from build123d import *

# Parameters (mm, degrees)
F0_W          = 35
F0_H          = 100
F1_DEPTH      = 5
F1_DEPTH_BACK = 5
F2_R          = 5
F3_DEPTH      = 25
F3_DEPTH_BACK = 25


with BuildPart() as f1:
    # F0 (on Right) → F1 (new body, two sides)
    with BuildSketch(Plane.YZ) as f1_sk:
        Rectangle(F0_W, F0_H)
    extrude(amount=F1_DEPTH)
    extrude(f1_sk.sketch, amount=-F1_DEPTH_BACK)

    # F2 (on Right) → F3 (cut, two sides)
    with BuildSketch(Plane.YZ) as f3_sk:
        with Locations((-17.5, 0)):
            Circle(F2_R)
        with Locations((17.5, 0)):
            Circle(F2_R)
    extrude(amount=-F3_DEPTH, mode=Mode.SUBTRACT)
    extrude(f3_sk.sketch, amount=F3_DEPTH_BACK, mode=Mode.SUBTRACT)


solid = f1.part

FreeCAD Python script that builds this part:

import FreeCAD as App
import Part
import Sketcher
Q = App.Units.Quantity

doc = App.newDocument("Part")
body = doc.addObject("PartDesign::Body", "Body")

# Sketch on YZ plane
sketch1 = body.newObject("Sketcher::SketchObject", "Sketch")
sketch1.AttachmentSupport = (doc.getObject("YZ_Plane"), [""])
sketch1.MapMode = "FlatFace"
sketch1.addGeometry([
    Part.LineSegment(App.Vector(-17.5, 50, 0), App.Vector(-17.5, -50, 0)),
    Part.LineSegment(App.Vector(-17.5, -50, 0), App.Vector(17.5, -50, 0)),
    Part.LineSegment(App.Vector(17.5, -50, 0), App.Vector(17.5, 50, 0)),
    Part.LineSegment(App.Vector(17.5, 50, 0), App.Vector(-17.5, 50, 0)),
], False)
sketch1.addConstraint([
    Sketcher.Constraint("Coincident", 0, 2, 1, 1),
    Sketcher.Constraint("Coincident", 1, 2, 2, 1),
    Sketcher.Constraint("Coincident", 2, 2, 3, 1),
    Sketcher.Constraint("Coincident", 3, 2, 0, 1),
    Sketcher.Constraint("Vertical", 0),
    Sketcher.Constraint("Horizontal", 1),
    Sketcher.Constraint("Vertical", 2),
    Sketcher.Constraint("Horizontal", 3),
    Sketcher.Constraint("Symmetric", 0, 2, 2, 2, -1, 1),
    Sketcher.Constraint("DistanceX", 1, 1, 1, 2, Q("35 mm")),
    Sketcher.Constraint("DistanceY", 0, 2, 0, 1, Q("100 mm")),
])
pad1 = body.newObject("PartDesign::Pad", "Pad")
pad1.Profile = sketch1
pad1.Type = "TwoLengths"
pad1.Length = 5
pad1.Length2 = 5

# Sketch on YZ plane
sketch2 = body.newObject("Sketcher::SketchObject", "Sketch001")
sketch2.AttachmentSupport = (doc.getObject("YZ_Plane"), [""])
sketch2.MapMode = "FlatFace"
sketch2.addGeometry([
    Part.Circle(App.Vector(-17.5, 0, 0), App.Vector(0, 0, 1), 5),
    Part.Circle(App.Vector(17.5, 0, 0), App.Vector(0, 0, 1), 5),
], False)
sketch2.addConstraint([
    Sketcher.Constraint("Equal", 0, 1),
    Sketcher.Constraint("Symmetric", 0, 3, 1, 3, -1, 1),
    Sketcher.Constraint("PointOnObject", 0, 3, -1),
    Sketcher.Constraint("Diameter", 0, Q("10 mm")),
    Sketcher.Constraint("DistanceX", 0, 3, 1, 3, Q("35 mm")),
])
pocket1 = body.newObject("PartDesign::Pocket", "Pocket")
pocket1.Profile = sketch2
pocket1.Type = "ThroughAll"
pocket1.Midplane = True

doc.recompute()
